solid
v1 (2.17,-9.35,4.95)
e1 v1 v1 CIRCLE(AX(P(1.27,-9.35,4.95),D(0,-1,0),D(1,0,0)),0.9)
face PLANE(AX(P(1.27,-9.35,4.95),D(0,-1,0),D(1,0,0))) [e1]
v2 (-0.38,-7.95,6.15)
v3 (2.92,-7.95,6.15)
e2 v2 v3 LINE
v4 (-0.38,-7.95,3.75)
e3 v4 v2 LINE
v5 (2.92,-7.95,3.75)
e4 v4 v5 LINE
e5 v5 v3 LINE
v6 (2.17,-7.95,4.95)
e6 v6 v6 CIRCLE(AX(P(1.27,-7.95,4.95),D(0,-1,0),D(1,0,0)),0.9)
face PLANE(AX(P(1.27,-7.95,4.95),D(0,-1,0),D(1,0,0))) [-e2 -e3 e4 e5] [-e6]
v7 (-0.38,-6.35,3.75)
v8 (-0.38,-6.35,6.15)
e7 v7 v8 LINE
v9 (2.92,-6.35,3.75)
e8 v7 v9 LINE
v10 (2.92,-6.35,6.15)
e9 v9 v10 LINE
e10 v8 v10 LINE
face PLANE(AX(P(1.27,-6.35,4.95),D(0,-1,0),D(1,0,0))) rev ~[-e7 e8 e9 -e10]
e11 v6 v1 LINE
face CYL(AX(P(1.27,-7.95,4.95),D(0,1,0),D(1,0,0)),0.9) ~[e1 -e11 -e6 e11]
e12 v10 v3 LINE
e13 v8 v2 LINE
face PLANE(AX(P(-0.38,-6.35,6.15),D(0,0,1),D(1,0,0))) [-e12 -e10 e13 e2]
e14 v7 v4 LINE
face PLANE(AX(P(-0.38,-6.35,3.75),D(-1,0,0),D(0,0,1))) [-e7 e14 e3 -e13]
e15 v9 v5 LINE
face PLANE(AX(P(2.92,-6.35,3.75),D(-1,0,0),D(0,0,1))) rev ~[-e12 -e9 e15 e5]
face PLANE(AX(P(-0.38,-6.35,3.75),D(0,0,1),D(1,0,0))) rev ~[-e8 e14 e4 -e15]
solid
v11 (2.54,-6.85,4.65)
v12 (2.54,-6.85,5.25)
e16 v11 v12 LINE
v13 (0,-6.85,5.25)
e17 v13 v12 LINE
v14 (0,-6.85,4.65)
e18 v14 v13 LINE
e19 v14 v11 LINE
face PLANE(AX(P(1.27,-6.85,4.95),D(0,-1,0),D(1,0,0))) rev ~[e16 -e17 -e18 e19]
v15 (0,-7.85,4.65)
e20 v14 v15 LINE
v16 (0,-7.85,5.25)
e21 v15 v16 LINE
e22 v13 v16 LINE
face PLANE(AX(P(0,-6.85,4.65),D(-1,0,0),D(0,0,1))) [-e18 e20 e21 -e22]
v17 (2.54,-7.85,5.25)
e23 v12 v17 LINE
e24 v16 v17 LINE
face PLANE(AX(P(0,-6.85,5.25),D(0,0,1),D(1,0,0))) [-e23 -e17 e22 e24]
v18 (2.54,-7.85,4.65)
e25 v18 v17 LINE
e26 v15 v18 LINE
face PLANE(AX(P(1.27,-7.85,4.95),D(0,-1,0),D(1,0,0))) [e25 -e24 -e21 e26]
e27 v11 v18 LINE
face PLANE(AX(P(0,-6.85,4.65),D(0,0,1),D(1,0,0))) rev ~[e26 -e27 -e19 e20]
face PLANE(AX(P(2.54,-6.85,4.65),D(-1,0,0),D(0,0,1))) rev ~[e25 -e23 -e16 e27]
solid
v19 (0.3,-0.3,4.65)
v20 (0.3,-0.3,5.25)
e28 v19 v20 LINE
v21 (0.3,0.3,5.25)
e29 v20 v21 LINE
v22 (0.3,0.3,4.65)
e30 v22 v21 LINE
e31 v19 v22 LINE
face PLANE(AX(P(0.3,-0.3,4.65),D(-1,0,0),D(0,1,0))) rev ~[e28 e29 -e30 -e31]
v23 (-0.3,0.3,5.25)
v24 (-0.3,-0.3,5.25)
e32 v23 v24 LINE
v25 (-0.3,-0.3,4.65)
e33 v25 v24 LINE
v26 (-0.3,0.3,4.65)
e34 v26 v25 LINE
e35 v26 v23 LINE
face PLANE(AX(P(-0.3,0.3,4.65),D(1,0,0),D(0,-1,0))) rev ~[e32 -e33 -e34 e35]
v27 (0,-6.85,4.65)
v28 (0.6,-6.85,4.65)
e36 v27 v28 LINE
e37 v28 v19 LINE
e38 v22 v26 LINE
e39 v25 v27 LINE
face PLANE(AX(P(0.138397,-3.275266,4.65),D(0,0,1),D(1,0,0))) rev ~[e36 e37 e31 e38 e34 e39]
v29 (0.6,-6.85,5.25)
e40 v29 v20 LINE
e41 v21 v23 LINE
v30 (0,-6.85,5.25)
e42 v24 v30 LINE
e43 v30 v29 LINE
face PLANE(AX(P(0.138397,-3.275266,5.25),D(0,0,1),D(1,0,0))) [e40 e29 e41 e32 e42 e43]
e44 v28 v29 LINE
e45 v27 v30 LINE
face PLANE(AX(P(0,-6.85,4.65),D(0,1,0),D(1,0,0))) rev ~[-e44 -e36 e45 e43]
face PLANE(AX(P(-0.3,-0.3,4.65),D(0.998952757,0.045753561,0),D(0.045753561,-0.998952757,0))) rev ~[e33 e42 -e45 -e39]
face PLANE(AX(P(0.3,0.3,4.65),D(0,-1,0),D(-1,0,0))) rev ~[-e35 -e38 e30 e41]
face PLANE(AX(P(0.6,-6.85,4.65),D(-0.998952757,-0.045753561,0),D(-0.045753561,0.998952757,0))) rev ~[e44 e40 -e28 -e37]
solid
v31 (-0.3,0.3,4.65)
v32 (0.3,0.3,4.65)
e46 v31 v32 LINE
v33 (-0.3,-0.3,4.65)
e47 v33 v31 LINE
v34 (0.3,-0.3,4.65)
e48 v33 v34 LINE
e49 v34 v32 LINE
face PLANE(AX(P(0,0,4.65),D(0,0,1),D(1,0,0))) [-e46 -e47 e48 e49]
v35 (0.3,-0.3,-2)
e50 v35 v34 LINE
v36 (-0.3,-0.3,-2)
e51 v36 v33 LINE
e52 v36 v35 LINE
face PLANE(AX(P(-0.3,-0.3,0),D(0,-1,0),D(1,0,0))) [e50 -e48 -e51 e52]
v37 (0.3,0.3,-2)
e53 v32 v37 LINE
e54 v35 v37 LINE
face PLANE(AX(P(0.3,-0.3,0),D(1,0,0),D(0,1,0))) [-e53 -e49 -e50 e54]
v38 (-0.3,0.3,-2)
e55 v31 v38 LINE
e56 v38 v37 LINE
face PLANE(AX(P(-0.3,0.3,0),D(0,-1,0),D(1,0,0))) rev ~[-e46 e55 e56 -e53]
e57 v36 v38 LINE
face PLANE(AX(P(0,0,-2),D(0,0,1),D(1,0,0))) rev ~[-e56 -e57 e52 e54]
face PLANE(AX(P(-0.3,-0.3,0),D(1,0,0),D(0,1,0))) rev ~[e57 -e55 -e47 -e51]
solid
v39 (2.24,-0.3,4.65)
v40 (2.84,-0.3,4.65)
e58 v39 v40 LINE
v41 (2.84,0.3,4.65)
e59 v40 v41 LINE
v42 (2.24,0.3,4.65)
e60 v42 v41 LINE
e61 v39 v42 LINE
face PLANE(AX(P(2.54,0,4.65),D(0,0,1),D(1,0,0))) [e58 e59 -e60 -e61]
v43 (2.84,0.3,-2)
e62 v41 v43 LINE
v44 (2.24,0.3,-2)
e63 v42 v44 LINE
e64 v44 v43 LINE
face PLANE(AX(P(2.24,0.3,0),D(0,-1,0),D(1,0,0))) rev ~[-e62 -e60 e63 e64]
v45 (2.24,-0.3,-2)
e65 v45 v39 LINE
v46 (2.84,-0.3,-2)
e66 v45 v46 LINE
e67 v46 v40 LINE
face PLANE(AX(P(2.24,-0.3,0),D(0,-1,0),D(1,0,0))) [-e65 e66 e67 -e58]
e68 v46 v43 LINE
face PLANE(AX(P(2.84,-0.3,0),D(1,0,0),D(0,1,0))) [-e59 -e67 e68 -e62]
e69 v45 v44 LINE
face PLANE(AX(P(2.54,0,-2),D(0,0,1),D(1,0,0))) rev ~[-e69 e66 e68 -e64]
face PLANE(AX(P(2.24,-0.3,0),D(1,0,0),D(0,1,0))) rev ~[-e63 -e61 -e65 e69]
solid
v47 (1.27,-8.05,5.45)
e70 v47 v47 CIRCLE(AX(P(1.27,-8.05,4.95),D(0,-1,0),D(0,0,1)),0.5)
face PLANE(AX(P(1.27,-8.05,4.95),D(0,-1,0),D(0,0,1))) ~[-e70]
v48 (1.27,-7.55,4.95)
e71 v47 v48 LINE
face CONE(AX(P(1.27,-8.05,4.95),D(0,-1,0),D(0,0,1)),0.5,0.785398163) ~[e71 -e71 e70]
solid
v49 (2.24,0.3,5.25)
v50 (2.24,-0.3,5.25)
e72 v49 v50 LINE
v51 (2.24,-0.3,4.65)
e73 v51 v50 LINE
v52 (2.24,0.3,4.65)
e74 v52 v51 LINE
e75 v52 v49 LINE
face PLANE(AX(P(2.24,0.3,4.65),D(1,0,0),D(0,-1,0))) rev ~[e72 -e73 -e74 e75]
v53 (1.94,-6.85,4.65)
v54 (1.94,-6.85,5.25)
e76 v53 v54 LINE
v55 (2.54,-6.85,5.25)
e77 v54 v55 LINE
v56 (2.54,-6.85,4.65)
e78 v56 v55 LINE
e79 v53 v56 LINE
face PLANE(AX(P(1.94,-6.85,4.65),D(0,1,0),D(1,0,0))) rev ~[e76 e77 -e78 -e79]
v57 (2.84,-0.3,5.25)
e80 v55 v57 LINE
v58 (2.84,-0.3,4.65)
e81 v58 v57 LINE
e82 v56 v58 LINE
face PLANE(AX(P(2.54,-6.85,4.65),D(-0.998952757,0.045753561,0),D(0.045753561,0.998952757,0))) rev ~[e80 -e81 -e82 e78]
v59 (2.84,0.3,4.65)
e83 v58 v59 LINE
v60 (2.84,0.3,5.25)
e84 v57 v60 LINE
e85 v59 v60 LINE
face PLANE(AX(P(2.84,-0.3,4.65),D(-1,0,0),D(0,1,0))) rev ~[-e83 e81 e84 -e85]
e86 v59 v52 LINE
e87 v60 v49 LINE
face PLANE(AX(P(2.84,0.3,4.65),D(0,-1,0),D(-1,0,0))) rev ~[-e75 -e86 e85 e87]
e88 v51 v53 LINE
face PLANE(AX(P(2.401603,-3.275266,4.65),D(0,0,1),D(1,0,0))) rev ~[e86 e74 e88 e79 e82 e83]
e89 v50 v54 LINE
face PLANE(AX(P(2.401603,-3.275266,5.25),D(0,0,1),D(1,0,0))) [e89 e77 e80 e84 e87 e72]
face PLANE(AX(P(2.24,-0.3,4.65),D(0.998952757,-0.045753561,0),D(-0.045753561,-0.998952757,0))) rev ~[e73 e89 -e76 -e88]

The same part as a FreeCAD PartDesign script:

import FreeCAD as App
import Part
import Sketcher

doc = App.newDocument("Part")
params = doc.addObject("Spreadsheet::Sheet", "Params")
for row, (alias, value) in enumerate([
    ("sketch1_width", "0.6 mm"),
    ("pad1_length", "4.65 mm"),
    ("pad1_length2", "2 mm"),
    ("sketch2_width", "0.6 mm"),
    ("pad2_length", "0.6 mm"),
    ("sketch3_height", "0.6 mm"),
    ("sketch3_width", "2.54 mm"),
    ("pad3_length", "1 mm"),
    ("sketch4_width", "0.5 mm"),
    ("revolution_angle", "360 deg"),
    ("sketch5_width", "3.3 mm"),
    ("sketch5_height", "2.4 mm"),
    ("pad4_length", "1.6 mm"),
    ("sketch6_diameter", "1.8 mm"),
    ("pad5_length", "1.4 mm"),
], start=1):
    params.set(f"A{row}", alias)
    params.set(f"B{row}", "=" + value)
    params.setAlias(f"B{row}", alias)

body = doc.addObject("PartDesign::Body", "Body")
body.AllowCompound = True

# Sketch on XY plane
sketch1 = body.newObject("Sketcher::SketchObject", "Sketch")
sketch1.AttachmentSupport = (doc.getObject("XY_Plane"), [""])
sketch1.MapMode = "FlatFace"
sketch1.addGeometry([
    Part.LineSegment(App.Vector(-0.3, 0.3, 0), App.Vector(-0.3, -0.3, 0)),  # 0
    Part.LineSegment(App.Vector(-0.3, -0.3, 0), App.Vector(0.3, -0.3, 0)),  # 1
    Part.LineSegment(App.Vector(0.3, -0.3, 0), App.Vector(0.3, 0.3, 0)),  # 2
    Part.LineSegment(App.Vector(0.3, 0.3, 0), App.Vector(-0.3, 0.3, 0)),  # 3
    Part.LineSegment(App.Vector(2.2, 0.3, 0), App.Vector(2.2, -0.3, 0)),  # 4
    Part.LineSegment(App.Vector(2.2, -0.3, 0), App.Vector(2.8, -0.3, 0)),  # 5
    Part.LineSegment(App.Vector(2.8, -0.3, 0), App.Vector(2.8, 0.3, 0)),  # 6
    Part.LineSegment(App.Vector(2.8, 0.3, 0), App.Vector(2.2, 0.3, 0)),  # 7
], False)
sketch1.addConstraint([
    Sketcher.Constraint("Coincident", 0, 2, 1, 1),
    Sketcher.Constraint("Coincident", 1, 2, 2, 1),
    Sketcher.Constraint("Coincident", 2, 2, 3, 1),
    Sketcher.Constraint("Coincident", 3, 2, 0, 1),
    Sketcher.Constraint("Coincident", 4, 2, 5, 1),
    Sketcher.Constraint("Coincident", 5, 2, 6, 1),
    Sketcher.Constraint("Coincident", 6, 2, 7, 1),
    Sketcher.Constraint("Coincident", 7, 2, 4, 1),
    Sketcher.Constraint("Vertical", 0),
    Sketcher.Constraint("Horizontal", 1),
    Sketcher.Constraint("Vertical", 2),
    Sketcher.Constraint("Horizontal", 3),
    Sketcher.Constraint("Vertical", 4),
    Sketcher.Constraint("Horizontal", 5),
    Sketcher.Constraint("Vertical", 6),
    Sketcher.Constraint("Horizontal", 7),
    Sketcher.Constraint("Symmetric", 0, 2, 2, 2, -1, 1),
    Sketcher.Constraint("Horizontal", 1, 2, 4, 2),
    Sketcher.Constraint("Horizontal", 3, 2, 6, 2),
    Sketcher.Constraint("Equal", 3, 5),
    Sketcher.Constraint("Equal", 7, 0),
    Sketcher.Constraint("DistanceX", 1, 1, 1, 2, 0.6),
    Sketcher.Constraint("DistanceX", -1, 1, 4, 2, 2.24),
])
sketch1.setExpression("Constraints[21]", "Params.sketch1_width")
pad1 = body.newObject("PartDesign::Pad", "Pad")
pad1.Profile = sketch1
pad1.Type = "TwoLengths"
pad1.setExpression("Length", "Params.pad1_length")
pad1.setExpression("Length2", "Params.pad1_length2")
body2 = doc.addObject("PartDesign::Body", "Body001")
body2.AllowCompound = True

# Sketch on XY plane
sketch2 = body2.newObject("Sketcher::SketchObject", "Sketch001")
sketch2.AttachmentSupport = (doc.getObject("XY_Plane001"), [""])
sketch2.MapMode = "FlatFace"
sketch2.AttachmentOffset = App.Placement(App.Vector(0, 0, 4.65), App.Rotation())
sketch2.addGeometry([
    Part.LineSegment(App.Vector(0.3, 0.3, 0), App.Vector(-0.3, 0.3, 0)),  # 0
    Part.LineSegment(App.Vector(-0.3, 0.3, 0), App.Vector(-0.3, -0.3, 0)),  # 1
    Part.LineSegment(App.Vector(-0.3, -0.3, 0), App.Vector(0, -6.8, 0)),  # 2
    Part.LineSegment(App.Vector(0, -6.8, 0), App.Vector(0.6, -6.8, 0)),  # 3
    Part.LineSegment(App.Vector(0.6, -6.8, 0), App.Vector(0.3, -0.3, 0)),  # 4
    Part.LineSegment(App.Vector(0.3, -0.3, 0), App.Vector(0.3, 0.3, 0)),  # 5
    Part.LineSegment(App.Vector(2.8, 0.3, 0), App.Vector(2.2, 0.3, 0)),  # 6
    Part.LineSegment(App.Vector(2.2, 0.3, 0), App.Vector(2.2, -0.3, 0)),  # 7
    Part.LineSegment(App.Vector(2.2, -0.3, 0), App.Vector(1.9, -6.8, 0)),  # 8
    Part.LineSegment(App.Vector(1.9, -6.8, 0), App.Vector(2.5, -6.8, 0)),  # 9
    Part.LineSegment(App.Vector(2.5, -6.8, 0), App.Vector(2.8, -0.3, 0)),  # 10
    Part.LineSegment(App.Vector(2.8, -0.3, 0), App.Vector(2.8, 0.3, 0)),  # 11
], False)
sketch2.addConstraint([
    Sketcher.Constraint("Coincident", 0, 2, 1, 1),
    Sketcher.Constraint("Coincident", 1, 2, 2, 1),
    Sketcher.Constraint("Coincident", 2, 2, 3, 1),
    Sketcher.Constraint("Coincident", 3, 2, 4, 1),
    Sketcher.Constraint("Coincident", 4, 2, 5, 1),
    Sketcher.Constraint("Coincident", 5, 2, 0, 1),
    Sketcher.Constraint("Coincident", 6, 2, 7, 1),
    Sketcher.Constraint("Coincident", 7, 2, 8, 1),
    Sketcher.Constraint("Coincident", 8, 2, 9, 1),
    Sketcher.Constraint("Coincident", 9, 2, 10, 1),
    Sketcher.Constraint("Coincident", 10, 2, 11, 1),
    Sketcher.Constraint("Coincident", 11, 2, 6, 1),
    Sketcher.Constraint("Horizontal", 0),
    Sketcher.Constraint("Vertical", 1),
    Sketcher.Constraint("Horizontal", 3),
    Sketcher.Constraint("Vertical", 5),
    Sketcher.Constraint("Horizontal", 6),
    Sketcher.Constraint("Vertical", 7),
    Sketcher.Constraint("Horizontal", 9),
    Sketcher.Constraint("Vertical", 11),
    Sketcher.Constraint("Symmetric", 0, 2, 4, 2, -1, 1),
    Sketcher.Constraint("PointOnObject", 2, 2, -2),
    Sketcher.Constraint("Parallel", 2, 4),
    Sketcher.Constraint("Parallel", 8, 10),
    Sketcher.Constraint("Horizontal", 1, 2, 4, 2),
    Sketcher.Constraint("Horizontal", 5, 2, 6, 2),
    Sketcher.Constraint("Horizontal", 4, 2, 7, 2),
    Sketcher.Constraint("Horizontal", 3, 2, 8, 2),
    Sketcher.Constraint("Horizontal", 7, 2, 10, 2),
    Sketcher.Constraint("Equal", 3, 6),
    Sketcher.Constraint("Equal", 9, 1),
    Sketcher.Constraint("Equal", 4, 8),
    Sketcher.Constraint("DistanceX", 0, 2, 0, 1, 0.6),
    Sketcher.Constraint("DistanceY", 2, 2, -1, 1, 6.85),
    Sketcher.Constraint("DistanceX", -1, 1, 6, 2, 2.24),
])
sketch2.setExpression("Constraints[32]", "Params.sketch2_width")
pad2 = body2.newObject("PartDesign::Pad", "Pad001")
pad2.Profile = sketch2
pad2.setExpression("Length", "Params.pad2_length")
body3 = doc.addObject("PartDesign::Body", "Body002")

# Sketch on XZ plane
sketch3 = body3.newObject("Sketcher::SketchObject", "Sketch002")
sketch3.AttachmentSupport = (doc.getObject("XZ_Plane002"), [""])
sketch3.MapMode = "FlatFace"
sketch3.AttachmentOffset = App.Placement(App.Vector(0, 0, 6.85), App.Rotation())
sketch3.addGeometry([
    Part.LineSegment(App.Vector(0, 5.2, 0), App.Vector(0, 4.7, 0)),
    Part.LineSegment(App.Vector(0, 4.7, 0), App.Vector(2.5, 4.7, 0)),
    Part.LineSegment(App.Vector(2.5, 4.7, 0), App.Vector(2.5, 5.2, 0)),
    Part.LineSegment(App.Vector(2.5, 5.2, 0), App.Vector(0, 5.2, 0)),
], False)
sketch3.addConstraint([
    Sketcher.Constraint("Coincident", 0, 2, 1, 1),
    Sketcher.Constraint("Coincident", 1, 2, 2, 1),
    Sketcher.Constraint("Coincident", 2, 2, 3, 1),
    Sketcher.Constraint("Coincident", 3, 2, 0, 1),
    Sketcher.Constraint("Vertical", 0),
    Sketcher.Constraint("Horizontal", 1),
    Sketcher.Constraint("Vertical", 2),
    Sketcher.Constraint("Horizontal", 3),
    Sketcher.Constraint("PointOnObject", 0, 2, -2),
    Sketcher.Constraint("DistanceY", 0, 2, 0, 1, 0.6),
    Sketcher.Constraint("DistanceX", 1, 1, 1, 2, 2.54),
    Sketcher.Constraint("DistanceY", -1, 1, 0, 2, 4.65),
])
sketch3.setExpression("Constraints[9]", "Params.sketch3_height")
sketch3.setExpression("Constraints[10]", "Params.sketch3_width")
pad3 = body3.newObject("PartDesign::Pad", "Pad002")
pad3.Profile = sketch3
pad3.setExpression("Length", "Params.pad3_length")
body4 = doc.addObject("PartDesign::Body", "Body003")

# Sketch on YZ plane
sketch4 = body4.newObject("Sketcher::SketchObject", "Sketch003")
sketch4.AttachmentSupport = (doc.getObject("YZ_Plane003"), [""])
sketch4.MapMode = "FlatFace"
sketch4.AttachmentOffset = App.Placement(App.Vector(0, 0, 1.27), App.Rotation())
sketch4.addGeometry([
    Part.LineSegment(App.Vector(-8.1, 5, 0), App.Vector(-7.5, 5, 0)),
    Part.LineSegment(App.Vector(-7.5, 5, 0), App.Vector(-8.1, 5.5, 0)),
    Part.LineSegment(App.Vector(-8.1, 5.5, 0), App.Vector(-8.1, 5, 0)),
], False)
sketch4.addGeometry(Part.LineSegment(App.Vector(-7.5, 5, 0), App.Vector(-8.1, 5, 0)), True)  # axis
sketch4.addConstraint([
    Sketcher.Constraint("Coincident", 0, 2, 1, 1),
    Sketcher.Constraint("Coincident", 1, 2, 2, 1),
    Sketcher.Constraint("Coincident", 2, 2, 0, 1),
    Sketcher.Constraint("Horizontal", 0),
    Sketcher.Constraint("Vertical", 2),
    Sketcher.Constraint("Horizontal", 3),
    Sketcher.Constraint("Coincident", 3, 1, 0, 2),
    Sketcher.Constraint("Vertical", 1, 2, 3, 2),
    Sketcher.Constraint("Equal", 3, 2),
    Sketcher.Constraint("DistanceX", 0, 1, 0, 2, 0.5),
    Sketcher.Constraint("DistanceX", 0, 2, -1, 1, 7.55),
    Sketcher.Constraint("DistanceY", -1, 1, 0, 2, 4.95),
])
sketch4.setExpression("Constraints[9]", "Params.sketch4_width")
revolution = body4.newObject("PartDesign::Revolution", "Revolution")
revolution.Profile = sketch4
revolution.ReferenceAxis = (sketch4, ["Axis0"])
revolution.setExpression("Angle", "Params.revolution_angle")
body5 = doc.addObject("PartDesign::Body", "Body004")

# Sketch on XZ plane
sketch5 = body5.newObject("Sketcher::SketchObject", "Sketch004")
sketch5.AttachmentSupport = (doc.getObject("XZ_Plane004"), [""])
sketch5.MapMode = "FlatFace"
sketch5.AttachmentOffset = App.Placement(App.Vector(0, 0, 6.35), App.Rotation())
sketch5.addGeometry([
    Part.LineSegment(App.Vector(-0.4, 6.2, 0), App.Vector(-0.4, 3.8, 0)),
    Part.LineSegment(App.Vector(-0.4, 3.8, 0), App.Vector(2.9, 3.8, 0)),
    Part.LineSegment(App.Vector(2.9, 3.8, 0), App.Vector(2.9, 6.2, 0)),
    Part.LineSegment(App.Vector(2.9, 6.2, 0), App.Vector(-0.4, 6.2, 0)),
], False)
sketch5.addConstraint([
    Sketcher.Constraint("Coincident", 0, 2, 1, 1),
    Sketcher.Constraint("Coincident", 1, 2, 2, 1),
    Sketcher.Constraint("Coincident", 2, 2, 3, 1),
    Sketcher.Constraint("Coincident", 3, 2, 0, 1),
    Sketcher.Constraint("Vertical", 0),
    Sketcher.Constraint("Horizontal", 1),
    Sketcher.Constraint("Vertical", 2),
    Sketcher.Constraint("Horizontal", 3),
    Sketcher.Constraint("DistanceX", 1, 1, 1, 2, 3.3),
    Sketcher.Constraint("DistanceY", 0, 2, 0, 1, 2.4),
    Sketcher.Constraint("DistanceX", 0, 2, -1, 1, 0.38),
    Sketcher.Constraint("DistanceY", -1, 1, 0, 2, 3.75),
])
sketch5.setExpression("Constraints[8]", "Params.sketch5_width")
sketch5.setExpression("Constraints[9]", "Params.sketch5_height")
pad4 = body5.newObject("PartDesign::Pad", "Pad003")
pad4.Profile = sketch5
pad4.setExpression("Length", "Params.pad4_length")

# Sketch on XZ plane
sketch6 = body5.newObject("Sketcher::SketchObject", "Sketch005")
sketch6.AttachmentSupport = (doc.getObject("XZ_Plane004"), [""])
sketch6.MapMode = "FlatFace"
sketch6.AttachmentOffset = App.Placement(App.Vector(0, 0, 7.95), App.Rotation())
sketch6.addGeometry(Part.Circle(App.Vector(1.3, 5, 0), App.Vector(0, 0, 1), 0.9), False)
sketch6.addConstraint([
    Sketcher.Constraint("Diameter", 0, 1.8),
    Sketcher.Constraint("DistanceX", -1, 1, 0, 3, 1.27),
    Sketcher.Constraint("DistanceY", -1, 1, 0, 3, 4.95),
])
sketch6.setExpression("Constraints[0]", "Params.sketch6_diameter")
pad5 = body5.newObject("PartDesign::Pad", "Pad004")
pad5.Profile = sketch6
pad5.setExpression("Length", "Params.pad5_length")

doc.recompute()
